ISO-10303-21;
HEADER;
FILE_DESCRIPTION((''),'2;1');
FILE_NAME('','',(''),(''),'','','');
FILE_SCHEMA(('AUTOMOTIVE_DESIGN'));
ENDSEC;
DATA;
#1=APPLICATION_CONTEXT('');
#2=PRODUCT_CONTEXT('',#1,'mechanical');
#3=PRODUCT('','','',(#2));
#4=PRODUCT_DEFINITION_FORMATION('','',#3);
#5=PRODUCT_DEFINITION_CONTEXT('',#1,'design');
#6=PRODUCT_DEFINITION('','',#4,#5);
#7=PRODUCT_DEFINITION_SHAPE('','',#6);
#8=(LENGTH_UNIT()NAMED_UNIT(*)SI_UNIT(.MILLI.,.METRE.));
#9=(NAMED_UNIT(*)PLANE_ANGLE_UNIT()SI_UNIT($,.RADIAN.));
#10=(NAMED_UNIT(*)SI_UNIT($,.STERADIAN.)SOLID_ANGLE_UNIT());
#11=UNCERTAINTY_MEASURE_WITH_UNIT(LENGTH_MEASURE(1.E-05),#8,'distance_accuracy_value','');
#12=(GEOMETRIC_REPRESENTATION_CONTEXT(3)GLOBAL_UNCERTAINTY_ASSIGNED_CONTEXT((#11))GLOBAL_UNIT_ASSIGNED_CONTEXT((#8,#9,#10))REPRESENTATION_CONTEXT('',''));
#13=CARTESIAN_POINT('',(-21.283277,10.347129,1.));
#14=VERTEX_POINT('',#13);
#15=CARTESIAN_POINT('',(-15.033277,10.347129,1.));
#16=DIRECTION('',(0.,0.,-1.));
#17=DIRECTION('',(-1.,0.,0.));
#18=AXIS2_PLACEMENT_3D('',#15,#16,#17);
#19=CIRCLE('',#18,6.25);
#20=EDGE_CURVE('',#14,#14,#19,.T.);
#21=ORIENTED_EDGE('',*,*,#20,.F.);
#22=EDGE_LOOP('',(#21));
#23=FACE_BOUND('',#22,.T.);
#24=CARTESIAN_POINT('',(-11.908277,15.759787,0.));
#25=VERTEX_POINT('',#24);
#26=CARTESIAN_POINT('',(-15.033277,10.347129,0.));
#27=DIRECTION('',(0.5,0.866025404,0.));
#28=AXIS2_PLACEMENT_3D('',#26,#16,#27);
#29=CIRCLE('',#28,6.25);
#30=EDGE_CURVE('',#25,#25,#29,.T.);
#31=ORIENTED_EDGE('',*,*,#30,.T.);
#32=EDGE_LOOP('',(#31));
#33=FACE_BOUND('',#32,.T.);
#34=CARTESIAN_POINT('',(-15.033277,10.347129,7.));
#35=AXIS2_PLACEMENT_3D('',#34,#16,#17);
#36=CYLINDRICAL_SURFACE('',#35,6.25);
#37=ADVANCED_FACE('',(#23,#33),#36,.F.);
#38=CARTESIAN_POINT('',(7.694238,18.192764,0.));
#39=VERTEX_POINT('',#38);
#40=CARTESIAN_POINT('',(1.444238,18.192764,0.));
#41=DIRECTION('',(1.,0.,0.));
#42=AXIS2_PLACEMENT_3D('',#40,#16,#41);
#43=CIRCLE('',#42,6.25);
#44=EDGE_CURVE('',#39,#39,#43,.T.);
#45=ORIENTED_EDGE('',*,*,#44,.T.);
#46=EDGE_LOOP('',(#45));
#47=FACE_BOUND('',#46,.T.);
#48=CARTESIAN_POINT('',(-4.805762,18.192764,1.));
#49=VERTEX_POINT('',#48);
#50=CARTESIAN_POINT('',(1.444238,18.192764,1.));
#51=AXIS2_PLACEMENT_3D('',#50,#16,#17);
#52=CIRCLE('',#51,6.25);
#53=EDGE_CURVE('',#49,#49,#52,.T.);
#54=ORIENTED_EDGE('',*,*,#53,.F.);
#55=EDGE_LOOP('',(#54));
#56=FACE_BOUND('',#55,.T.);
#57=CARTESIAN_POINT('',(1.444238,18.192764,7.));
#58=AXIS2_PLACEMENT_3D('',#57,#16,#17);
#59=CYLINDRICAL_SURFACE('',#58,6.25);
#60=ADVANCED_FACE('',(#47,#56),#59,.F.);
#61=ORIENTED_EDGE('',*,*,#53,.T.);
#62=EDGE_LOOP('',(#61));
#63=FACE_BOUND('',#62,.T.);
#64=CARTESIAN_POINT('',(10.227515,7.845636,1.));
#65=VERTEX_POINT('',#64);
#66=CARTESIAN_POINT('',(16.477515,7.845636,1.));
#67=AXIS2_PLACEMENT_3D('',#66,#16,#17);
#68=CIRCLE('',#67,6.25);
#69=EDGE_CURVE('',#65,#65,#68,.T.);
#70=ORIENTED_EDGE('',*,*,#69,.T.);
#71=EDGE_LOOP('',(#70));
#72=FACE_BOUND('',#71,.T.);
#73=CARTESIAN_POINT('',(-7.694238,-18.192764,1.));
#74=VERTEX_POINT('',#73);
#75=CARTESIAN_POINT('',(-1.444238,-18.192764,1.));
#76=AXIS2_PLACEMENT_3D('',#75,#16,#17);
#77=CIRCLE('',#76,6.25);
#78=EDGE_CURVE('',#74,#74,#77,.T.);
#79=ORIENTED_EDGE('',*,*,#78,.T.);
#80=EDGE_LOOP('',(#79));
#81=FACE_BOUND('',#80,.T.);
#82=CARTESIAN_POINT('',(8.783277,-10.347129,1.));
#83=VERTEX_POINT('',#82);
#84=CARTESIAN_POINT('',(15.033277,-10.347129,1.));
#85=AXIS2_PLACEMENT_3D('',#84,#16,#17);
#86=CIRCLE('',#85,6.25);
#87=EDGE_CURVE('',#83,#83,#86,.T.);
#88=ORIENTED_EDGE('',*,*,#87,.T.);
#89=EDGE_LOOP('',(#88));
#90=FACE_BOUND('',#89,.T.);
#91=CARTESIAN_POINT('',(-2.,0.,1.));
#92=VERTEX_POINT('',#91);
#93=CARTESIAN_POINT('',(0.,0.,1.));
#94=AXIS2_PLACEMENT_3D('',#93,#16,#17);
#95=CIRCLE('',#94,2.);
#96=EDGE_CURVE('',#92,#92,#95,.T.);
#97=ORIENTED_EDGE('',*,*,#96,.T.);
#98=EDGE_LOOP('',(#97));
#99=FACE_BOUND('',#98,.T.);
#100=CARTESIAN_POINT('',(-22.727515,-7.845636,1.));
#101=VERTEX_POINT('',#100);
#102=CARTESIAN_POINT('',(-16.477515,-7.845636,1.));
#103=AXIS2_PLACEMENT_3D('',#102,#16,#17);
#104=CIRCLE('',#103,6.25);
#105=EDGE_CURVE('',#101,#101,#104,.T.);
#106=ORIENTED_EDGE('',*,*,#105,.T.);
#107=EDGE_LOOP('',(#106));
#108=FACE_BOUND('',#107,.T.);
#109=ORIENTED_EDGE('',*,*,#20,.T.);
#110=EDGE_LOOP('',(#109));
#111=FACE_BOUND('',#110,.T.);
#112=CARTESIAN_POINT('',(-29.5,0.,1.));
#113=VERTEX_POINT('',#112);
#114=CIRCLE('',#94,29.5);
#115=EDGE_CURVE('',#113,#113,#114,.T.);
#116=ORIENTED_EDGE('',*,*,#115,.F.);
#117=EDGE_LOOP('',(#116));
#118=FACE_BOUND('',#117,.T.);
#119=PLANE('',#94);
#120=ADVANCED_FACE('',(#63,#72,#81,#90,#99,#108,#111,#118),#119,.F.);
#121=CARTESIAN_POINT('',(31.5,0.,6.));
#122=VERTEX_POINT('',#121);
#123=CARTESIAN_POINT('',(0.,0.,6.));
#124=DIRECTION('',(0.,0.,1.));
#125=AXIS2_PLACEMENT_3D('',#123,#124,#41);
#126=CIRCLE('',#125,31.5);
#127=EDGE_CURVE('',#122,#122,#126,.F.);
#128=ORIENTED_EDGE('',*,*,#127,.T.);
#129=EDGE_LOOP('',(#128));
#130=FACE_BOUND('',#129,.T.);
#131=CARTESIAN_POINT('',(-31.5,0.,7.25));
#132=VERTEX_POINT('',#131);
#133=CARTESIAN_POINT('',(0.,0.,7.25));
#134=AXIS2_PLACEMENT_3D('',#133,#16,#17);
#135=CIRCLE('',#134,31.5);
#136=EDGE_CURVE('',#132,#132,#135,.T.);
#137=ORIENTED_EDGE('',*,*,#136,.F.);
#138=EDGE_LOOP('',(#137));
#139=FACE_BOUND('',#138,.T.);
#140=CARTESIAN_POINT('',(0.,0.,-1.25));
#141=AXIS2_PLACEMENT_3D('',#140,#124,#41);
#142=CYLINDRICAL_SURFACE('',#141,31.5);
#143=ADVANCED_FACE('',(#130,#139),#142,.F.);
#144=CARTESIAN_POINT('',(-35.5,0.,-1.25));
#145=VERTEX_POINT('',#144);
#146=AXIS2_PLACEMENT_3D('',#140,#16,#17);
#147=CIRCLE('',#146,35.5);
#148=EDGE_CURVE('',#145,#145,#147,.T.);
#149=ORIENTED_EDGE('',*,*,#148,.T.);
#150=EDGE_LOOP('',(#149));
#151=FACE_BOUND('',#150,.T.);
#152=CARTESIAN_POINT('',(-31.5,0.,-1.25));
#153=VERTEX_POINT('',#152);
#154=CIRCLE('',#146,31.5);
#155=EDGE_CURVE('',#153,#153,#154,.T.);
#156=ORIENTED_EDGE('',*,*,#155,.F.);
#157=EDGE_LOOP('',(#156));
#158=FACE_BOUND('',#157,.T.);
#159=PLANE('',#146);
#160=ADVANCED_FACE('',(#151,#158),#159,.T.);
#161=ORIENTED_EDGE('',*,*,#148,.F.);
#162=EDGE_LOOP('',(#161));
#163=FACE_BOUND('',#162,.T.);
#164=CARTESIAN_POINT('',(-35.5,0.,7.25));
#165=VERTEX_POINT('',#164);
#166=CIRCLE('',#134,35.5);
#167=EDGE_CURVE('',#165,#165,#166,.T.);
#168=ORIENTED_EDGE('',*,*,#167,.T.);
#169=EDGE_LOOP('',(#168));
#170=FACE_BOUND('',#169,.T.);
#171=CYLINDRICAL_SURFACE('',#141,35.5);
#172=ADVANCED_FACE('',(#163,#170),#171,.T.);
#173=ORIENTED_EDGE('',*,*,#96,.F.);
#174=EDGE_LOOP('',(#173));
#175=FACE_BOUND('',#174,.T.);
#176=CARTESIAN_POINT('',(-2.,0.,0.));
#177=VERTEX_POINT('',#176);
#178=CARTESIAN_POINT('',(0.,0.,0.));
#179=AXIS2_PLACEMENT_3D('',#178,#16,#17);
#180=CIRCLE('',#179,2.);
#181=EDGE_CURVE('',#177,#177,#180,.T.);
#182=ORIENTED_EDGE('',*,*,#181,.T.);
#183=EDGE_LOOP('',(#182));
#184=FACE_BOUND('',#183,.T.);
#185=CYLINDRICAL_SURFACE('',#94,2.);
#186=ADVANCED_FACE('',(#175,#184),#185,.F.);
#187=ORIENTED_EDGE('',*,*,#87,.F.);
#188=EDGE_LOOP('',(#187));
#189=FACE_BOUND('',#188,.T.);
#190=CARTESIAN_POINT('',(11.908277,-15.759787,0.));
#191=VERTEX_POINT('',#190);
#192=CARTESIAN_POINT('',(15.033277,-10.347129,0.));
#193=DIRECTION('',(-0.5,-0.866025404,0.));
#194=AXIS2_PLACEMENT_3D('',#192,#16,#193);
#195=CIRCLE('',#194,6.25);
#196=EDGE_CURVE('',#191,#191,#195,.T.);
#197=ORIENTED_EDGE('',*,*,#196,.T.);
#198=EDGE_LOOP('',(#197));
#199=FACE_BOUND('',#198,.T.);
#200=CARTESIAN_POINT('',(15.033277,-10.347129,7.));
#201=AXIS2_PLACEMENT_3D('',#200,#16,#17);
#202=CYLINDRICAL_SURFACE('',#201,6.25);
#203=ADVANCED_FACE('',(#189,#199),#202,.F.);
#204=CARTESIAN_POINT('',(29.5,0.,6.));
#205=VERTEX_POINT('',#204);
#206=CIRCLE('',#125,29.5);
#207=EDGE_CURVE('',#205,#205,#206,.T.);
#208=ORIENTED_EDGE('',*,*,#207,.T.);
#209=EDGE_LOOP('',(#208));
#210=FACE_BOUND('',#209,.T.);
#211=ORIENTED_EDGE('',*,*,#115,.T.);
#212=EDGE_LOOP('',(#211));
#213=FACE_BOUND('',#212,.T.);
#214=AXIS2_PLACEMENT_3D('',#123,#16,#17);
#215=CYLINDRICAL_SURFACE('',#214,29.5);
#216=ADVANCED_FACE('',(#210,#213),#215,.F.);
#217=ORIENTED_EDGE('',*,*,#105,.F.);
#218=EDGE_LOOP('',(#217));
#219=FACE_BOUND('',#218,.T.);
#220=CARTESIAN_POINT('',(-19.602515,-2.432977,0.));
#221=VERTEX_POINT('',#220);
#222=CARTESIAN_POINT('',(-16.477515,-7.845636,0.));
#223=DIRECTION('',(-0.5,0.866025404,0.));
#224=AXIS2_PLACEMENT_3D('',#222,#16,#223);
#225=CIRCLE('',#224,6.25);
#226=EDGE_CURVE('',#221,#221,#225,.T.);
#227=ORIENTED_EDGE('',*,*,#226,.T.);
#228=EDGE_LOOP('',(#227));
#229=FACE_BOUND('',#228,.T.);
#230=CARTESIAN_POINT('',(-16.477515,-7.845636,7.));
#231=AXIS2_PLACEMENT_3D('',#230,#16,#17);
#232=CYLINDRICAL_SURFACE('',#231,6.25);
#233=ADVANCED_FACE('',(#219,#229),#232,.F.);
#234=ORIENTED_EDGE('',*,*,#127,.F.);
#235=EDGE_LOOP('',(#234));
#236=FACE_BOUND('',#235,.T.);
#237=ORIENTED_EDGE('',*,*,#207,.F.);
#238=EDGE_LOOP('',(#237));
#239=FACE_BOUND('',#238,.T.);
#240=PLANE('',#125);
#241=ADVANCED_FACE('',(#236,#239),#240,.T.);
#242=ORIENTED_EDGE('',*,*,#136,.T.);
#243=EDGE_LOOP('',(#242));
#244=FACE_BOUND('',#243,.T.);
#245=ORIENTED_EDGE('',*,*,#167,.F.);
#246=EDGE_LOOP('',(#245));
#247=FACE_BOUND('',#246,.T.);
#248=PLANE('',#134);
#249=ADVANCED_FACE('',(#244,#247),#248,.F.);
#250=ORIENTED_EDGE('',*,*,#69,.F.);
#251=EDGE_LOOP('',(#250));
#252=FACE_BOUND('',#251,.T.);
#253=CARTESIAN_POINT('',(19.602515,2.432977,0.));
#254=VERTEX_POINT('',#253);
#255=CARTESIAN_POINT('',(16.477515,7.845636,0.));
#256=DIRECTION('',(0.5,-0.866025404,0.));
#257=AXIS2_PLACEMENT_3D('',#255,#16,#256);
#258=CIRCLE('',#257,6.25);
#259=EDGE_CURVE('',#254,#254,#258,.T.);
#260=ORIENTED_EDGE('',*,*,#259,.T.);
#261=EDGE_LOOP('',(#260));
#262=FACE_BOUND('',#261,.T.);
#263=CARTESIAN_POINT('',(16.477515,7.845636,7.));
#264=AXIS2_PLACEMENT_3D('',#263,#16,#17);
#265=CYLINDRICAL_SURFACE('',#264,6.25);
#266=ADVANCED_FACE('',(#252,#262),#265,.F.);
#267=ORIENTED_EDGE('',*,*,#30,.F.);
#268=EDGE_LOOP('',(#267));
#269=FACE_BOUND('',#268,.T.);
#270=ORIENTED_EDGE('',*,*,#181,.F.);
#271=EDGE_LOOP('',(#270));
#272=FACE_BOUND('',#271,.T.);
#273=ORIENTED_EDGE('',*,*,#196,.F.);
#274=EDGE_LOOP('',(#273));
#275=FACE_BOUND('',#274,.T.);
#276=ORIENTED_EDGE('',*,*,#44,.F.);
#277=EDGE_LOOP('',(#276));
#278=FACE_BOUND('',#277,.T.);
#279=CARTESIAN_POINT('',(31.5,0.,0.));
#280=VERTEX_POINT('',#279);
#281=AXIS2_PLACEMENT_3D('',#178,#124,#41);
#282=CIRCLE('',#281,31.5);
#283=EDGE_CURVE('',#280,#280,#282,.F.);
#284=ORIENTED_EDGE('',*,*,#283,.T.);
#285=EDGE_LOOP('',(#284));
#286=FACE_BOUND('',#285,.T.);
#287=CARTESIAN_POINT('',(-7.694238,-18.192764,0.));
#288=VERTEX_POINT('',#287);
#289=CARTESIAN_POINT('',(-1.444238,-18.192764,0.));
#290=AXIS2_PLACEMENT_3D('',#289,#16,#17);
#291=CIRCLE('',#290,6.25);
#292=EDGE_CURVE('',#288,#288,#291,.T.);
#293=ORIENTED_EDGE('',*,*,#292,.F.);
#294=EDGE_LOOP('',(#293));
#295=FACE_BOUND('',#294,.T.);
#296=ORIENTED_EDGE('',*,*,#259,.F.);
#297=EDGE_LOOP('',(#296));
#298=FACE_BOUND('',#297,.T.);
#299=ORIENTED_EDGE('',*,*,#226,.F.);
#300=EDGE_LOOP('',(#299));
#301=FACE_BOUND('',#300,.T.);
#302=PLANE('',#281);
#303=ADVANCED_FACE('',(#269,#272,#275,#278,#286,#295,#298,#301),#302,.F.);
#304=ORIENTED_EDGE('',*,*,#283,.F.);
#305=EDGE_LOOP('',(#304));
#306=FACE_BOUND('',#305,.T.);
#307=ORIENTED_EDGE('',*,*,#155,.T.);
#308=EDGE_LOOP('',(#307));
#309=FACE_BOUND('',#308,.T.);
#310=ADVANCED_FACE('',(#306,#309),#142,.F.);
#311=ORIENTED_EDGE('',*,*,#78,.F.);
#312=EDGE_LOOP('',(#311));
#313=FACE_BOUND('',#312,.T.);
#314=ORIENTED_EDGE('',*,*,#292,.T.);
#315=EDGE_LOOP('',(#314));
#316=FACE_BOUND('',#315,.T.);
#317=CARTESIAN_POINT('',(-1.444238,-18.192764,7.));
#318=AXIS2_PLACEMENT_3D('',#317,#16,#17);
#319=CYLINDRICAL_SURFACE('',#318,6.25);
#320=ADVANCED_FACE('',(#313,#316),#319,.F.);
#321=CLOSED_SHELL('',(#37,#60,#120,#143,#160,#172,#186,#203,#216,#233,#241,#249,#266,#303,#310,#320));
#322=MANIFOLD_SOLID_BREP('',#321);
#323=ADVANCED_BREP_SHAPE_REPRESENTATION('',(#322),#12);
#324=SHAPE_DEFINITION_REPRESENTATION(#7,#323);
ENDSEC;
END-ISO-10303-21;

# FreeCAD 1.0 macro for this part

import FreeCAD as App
import Part
import Sketcher
Q = App.Units.Quantity

doc = App.newDocument("Part")
body = doc.addObject("PartDesign::Body", "Body")

# Sketch on XY plane
sketch1 = doc.addObject("Sketcher::SketchObject", "Sketch")
body.addObject(sketch1)
sketch1.AttachmentSupport = (doc.XY_Plane, [""])
sketch1.MapMode = "FlatFace"
sketch1.addGeometry([
    Part.Circle(App.Vector(0, 0, 0), App.Vector(0, 0, 1), 33),
    Part.Circle(App.Vector(0, 0, 0), App.Vector(0, 0, 1), 30),
], False)
sketch1.addConstraint([
    Sketcher.Constraint("Coincident", 0, 3, -1, 1),
    Sketcher.Constraint("Coincident", 1, 3, -1, 1),
    Sketcher.Constraint("Diameter", 0, Q("66 mm")),
    Sketcher.Constraint("Diameter", 1, Q("59 mm")),
])
pad1 = doc.addObject("PartDesign::Pad", "Pad")
body.addObject(pad1)
pad1.Profile = sketch1
pad1.Length = 6

# Sketch on XY plane
sketch2 = doc.addObject("Sketcher::SketchObject", "Sketch001")
body.addObject(sketch2)
sketch2.AttachmentSupport = (doc.XY_Plane, [""])
sketch2.MapMode = "FlatFace"
sketch2.addGeometry([
    Part.Circle(App.Vector(0, 0, 0), App.Vector(0, 0, 1), 33),
    Part.Circle(App.Vector(0, 0, 0), App.Vector(0, 0, 1), 2),
], False)
sketch2.addConstraint([
    Sketcher.Constraint("Coincident", 0, 3, -1, 1),
    Sketcher.Constraint("Coincident", 1, 3, -1, 1),
    Sketcher.Constraint("Diameter", 0, Q("66 mm")),
    Sketcher.Constraint("Diameter", 1, Q("4 mm")),
])
pad2 = doc.addObject("PartDesign::Pad", "Pad001")
body.addObject(pad2)
pad2.Profile = sketch2
pad2.Length = 1

# Sketch on XY plane
sketch3 = doc.addObject("Sketcher::SketchObject", "Sketch002")
body.addObject(sketch3)
sketch3.AttachmentSupport = (doc.XY_Plane, [""])
sketch3.MapMode = "FlatFace"
sketch3.addGeometry(Part.Circle(App.Vector(-1, -18, 0), App.Vector(0, 0, 1), 6), False)
sketch3.addConstraint([
    Sketcher.Constraint("Diameter", 0, Q("12.5 mm")),
    Sketcher.Constraint("DistanceX", 0, 3, -1, 1, Q("1.444238 mm")),
    Sketcher.Constraint("DistanceY", 0, 3, -1, 1, Q("18.192764 mm")),
])
pocket1 = doc.addObject("PartDesign::Pocket", "Pocket")
body.addObject(pocket1)
pocket1.Profile = sketch3
pocket1.Length = 7
pocket1.Reversed = True
doc.recompute()

polarpattern = doc.addObject("PartDesign::PolarPattern", "PolarPattern")
body.addObject(polarpattern)
polarpattern.Originals = [pocket1]
polarpattern.Axis = (doc.Z_Axis, [""])
polarpattern.Angle = 360
polarpattern.Occurrences = 6
body.Tip = polarpattern

# Sketch on XY plane
sketch4 = doc.addObject("Sketcher::SketchObject", "Sketch003")
body.addObject(sketch4)
sketch4.AttachmentSupport = (doc.XY_Plane, [""])
sketch4.MapMode = "FlatFace"
sketch4.addGeometry([
    Part.Circle(App.Vector(0, 0, 0), App.Vector(0, 0, 1), 36),
    Part.Circle(App.Vector(0, 0, 0), App.Vector(0, 0, 1), 32),
], False)
sketch4.addConstraint([
    Sketcher.Constraint("Coincident", 0, 3, -1, 1),
    Sketcher.Constraint("Coincident", 1, 3, -1, 1),
    Sketcher.Constraint("Diameter", 0, Q("71 mm")),
    Sketcher.Constraint("Diameter", 1, Q("63 mm")),
])
pad3 = doc.addObject("PartDesign::Pad", "Pad002")
body.addObject(pad3)
pad3.Profile = sketch4
pad3.Type = "TwoLengths"
pad3.Length = 1.25
pad3.Length2 = 7.25
pad3.Reversed = True

doc.recompute()
